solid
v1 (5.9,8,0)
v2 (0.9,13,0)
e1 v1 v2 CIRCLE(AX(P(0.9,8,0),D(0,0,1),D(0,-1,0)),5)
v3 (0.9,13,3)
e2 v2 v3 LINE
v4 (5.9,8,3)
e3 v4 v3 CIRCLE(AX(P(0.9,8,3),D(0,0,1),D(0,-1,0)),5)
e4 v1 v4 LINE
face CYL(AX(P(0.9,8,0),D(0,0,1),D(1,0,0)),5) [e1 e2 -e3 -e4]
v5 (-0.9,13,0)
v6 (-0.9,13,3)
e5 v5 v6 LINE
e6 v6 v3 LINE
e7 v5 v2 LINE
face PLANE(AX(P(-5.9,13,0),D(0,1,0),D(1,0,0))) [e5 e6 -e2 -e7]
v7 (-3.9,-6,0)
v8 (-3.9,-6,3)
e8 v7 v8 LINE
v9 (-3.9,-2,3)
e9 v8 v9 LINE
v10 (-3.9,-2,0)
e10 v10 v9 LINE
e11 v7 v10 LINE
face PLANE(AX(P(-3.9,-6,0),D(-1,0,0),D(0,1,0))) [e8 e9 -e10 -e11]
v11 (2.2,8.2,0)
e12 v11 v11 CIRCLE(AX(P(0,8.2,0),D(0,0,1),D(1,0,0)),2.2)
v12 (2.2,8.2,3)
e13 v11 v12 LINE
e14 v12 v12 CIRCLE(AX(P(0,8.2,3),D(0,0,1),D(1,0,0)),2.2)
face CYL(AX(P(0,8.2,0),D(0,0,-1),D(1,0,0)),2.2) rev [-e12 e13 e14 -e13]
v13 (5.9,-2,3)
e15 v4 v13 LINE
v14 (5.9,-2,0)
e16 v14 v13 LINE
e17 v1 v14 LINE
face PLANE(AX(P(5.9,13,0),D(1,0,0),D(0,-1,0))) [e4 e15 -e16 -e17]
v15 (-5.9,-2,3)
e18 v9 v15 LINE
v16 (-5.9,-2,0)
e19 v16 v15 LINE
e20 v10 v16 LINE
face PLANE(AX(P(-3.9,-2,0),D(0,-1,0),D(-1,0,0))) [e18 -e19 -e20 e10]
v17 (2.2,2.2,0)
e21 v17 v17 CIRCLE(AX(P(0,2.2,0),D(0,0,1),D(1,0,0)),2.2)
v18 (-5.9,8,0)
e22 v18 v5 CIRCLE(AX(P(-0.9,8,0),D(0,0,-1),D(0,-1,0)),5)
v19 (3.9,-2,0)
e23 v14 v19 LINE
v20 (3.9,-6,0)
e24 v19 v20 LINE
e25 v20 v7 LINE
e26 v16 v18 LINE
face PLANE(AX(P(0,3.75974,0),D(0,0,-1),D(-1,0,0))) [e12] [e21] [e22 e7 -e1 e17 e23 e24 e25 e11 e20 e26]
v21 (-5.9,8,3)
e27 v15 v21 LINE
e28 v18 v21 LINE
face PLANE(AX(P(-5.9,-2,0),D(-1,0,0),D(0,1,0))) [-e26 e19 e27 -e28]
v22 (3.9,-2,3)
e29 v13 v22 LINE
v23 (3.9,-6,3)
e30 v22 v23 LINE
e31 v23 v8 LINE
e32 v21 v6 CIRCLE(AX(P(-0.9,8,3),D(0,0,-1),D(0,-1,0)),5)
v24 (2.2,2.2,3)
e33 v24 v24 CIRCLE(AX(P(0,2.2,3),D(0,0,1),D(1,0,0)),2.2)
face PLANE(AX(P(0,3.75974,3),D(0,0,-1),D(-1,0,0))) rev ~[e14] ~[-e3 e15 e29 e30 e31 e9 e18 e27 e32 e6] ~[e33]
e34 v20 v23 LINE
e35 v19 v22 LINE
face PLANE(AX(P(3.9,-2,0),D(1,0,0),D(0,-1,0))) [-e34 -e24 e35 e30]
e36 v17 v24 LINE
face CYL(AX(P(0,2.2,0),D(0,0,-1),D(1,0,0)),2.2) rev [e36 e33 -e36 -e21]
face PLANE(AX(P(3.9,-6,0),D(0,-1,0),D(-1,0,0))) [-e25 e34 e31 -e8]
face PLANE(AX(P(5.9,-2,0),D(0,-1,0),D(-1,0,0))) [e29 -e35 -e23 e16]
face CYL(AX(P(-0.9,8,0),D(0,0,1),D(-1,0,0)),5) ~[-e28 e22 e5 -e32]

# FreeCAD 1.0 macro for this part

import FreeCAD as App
import Part
import Sketcher
Q = App.Units.Quantity


def edges_at(feature, points):
    """Names of the edges that pass closest to the given points."""
    edges = feature.Shape.Edges
    near = lambda p: min(range(len(edges)), key=lambda i: edges[i].distToShape(Part.Vertex(*p))[0])
    return sorted({f"Edge{near(p) + 1}" for p in points})

doc = App.newDocument("Part")
params = doc.addObject("Spreadsheet::Sheet", "Params")
for row, (alias, value) in enumerate([
    ("sketch1_diameter", "4.4 mm"),
    ("sketch1_width", "2 mm"),
    ("sketch1_height", "4 mm"),
    ("sketch1_height2", "15 mm"),
    ("sketch1_width2", "7.8 mm"),
    ("pad1_length", "3 mm"),
    ("fillet_radius", "5 mm"),
], start=1):
    params.set(f"A{row}", alias)
    params.set(f"B{row}", "=" + value)
    params.setAlias(f"B{row}", alias)

body = doc.addObject("PartDesign::Body", "Body")

sketch1 = doc.addObject("Sketcher::SketchObject", "Sketch")
body.addObject(sketch1)
sketch1.AttachmentSupport = (doc.XY_Plane, [""])
sketch1.MapMode = "FlatFace"
sketch1.addGeometry([
    Part.LineSegment(App.Vector(-3.9, -6, 0), App.Vector(3.9, -6, 0)),
    Part.LineSegment(App.Vector(3.9, -6, 0), App.Vector(3.9, -2, 0)),
    Part.LineSegment(App.Vector(3.9, -2, 0), App.Vector(5.9, -2, 0)),
    Part.LineSegment(App.Vector(5.9, -2, 0), App.Vector(5.9, 13, 0)),
    Part.LineSegment(App.Vector(5.9, 13, 0), App.Vector(-5.9, 13, 0)),
    Part.LineSegment(App.Vector(-5.9, 13, 0), App.Vector(-5.9, -2, 0)),
    Part.LineSegment(App.Vector(-5.9, -2, 0), App.Vector(-3.9, -2, 0)),
    Part.LineSegment(App.Vector(-3.9, -2, 0), App.Vector(-3.9, -6, 0)),
    Part.Circle(App.Vector(0, 2.2, 0), App.Vector(0, 0, 1), 2.2),
    Part.Circle(App.Vector(0, 8.2, 0), App.Vector(0, 0, 1), 2.2),
], False)
sketch1.addConstraint([
    Sketcher.Constraint("Coincident", 0, 2, 1, 1),
    Sketcher.Constraint("Coincident", 1, 2, 2, 1),
    Sketcher.Constraint("Coincident", 2, 2, 3, 1),
    Sketcher.Constraint("Coincident", 3, 2, 4, 1),
    Sketcher.Constraint("Coincident", 4, 2, 5, 1),
    Sketcher.Constraint("Coincident", 5, 2, 6, 1),
    Sketcher.Constraint("Coincident", 6, 2, 7, 1),
    Sketcher.Constraint("Coincident", 7, 2, 0, 1),
    Sketcher.Constraint("Horizontal", 0),
    Sketcher.Constraint("Vertical", 1),
    Sketcher.Constraint("Horizontal", 2),
    Sketcher.Constraint("Vertical", 3),
    Sketcher.Constraint("Horizontal", 4),
    Sketcher.Constraint("Vertical", 5),
    Sketcher.Constraint("Horizontal", 6),
    Sketcher.Constraint("Vertical", 7),
    Sketcher.Constraint("Equal", 8, 9),
    Sketcher.Constraint("Symmetric", 2, 2, 5, 2, -2),
    Sketcher.Constraint("PointOnObject", 8, 3, -2),
    Sketcher.Constraint("PointOnObject", 9, 3, -2),
    Sketcher.Constraint("Equal", 2, 6),
    Sketcher.Constraint("Diameter", 8, Q("4.4 mm")),
    Sketcher.Constraint("DistanceX", 2, 1, 2, 2, Q("2 mm")),
    Sketcher.Constraint("DistanceY", 1, 1, 1, 2, Q("4 mm")),
    Sketcher.Constraint("DistanceY", 3, 1, 3, 2, Q("15 mm")),
    Sketcher.Constraint("DistanceX", 0, 1, 0, 2, Q("7.8 mm")),
    Sketcher.Constraint("DistanceY", 0, 2, -1, 1, Q("6 mm")),
    Sketcher.Constraint("DistanceY", 8, 3, 9, 3, Q("6 mm")),
    Sketcher.Constraint("DistanceY", -1, 1, 8, 3, Q("2.2 mm")),
])
sketch1.setExpression("Constraints[21]", "Params.sketch1_diameter")
sketch1.setExpression("Constraints[22]", "Params.sketch1_width")
sketch1.setExpression("Constraints[23]", "Params.sketch1_height")
sketch1.setExpression("Constraints[24]", "Params.sketch1_height2")
sketch1.setExpression("Constraints[25]", "Params.sketch1_width2")
pad1 = doc.addObject("PartDesign::Pad", "Pad")
body.addObject(pad1)
pad1.Profile = sketch1
pad1.setExpression("Length", "Params.pad1_length")
doc.recompute()

fillet = doc.addObject("PartDesign::Fillet", "Fillet")
body.addObject(fillet)
fillet.Base = (pad1, edges_at(pad1, [(5.9, 13, 1.5), (-5.9, 13, 1.5)]))
fillet.setExpression("Radius", "Params.fillet_radius")

doc.recompute()
